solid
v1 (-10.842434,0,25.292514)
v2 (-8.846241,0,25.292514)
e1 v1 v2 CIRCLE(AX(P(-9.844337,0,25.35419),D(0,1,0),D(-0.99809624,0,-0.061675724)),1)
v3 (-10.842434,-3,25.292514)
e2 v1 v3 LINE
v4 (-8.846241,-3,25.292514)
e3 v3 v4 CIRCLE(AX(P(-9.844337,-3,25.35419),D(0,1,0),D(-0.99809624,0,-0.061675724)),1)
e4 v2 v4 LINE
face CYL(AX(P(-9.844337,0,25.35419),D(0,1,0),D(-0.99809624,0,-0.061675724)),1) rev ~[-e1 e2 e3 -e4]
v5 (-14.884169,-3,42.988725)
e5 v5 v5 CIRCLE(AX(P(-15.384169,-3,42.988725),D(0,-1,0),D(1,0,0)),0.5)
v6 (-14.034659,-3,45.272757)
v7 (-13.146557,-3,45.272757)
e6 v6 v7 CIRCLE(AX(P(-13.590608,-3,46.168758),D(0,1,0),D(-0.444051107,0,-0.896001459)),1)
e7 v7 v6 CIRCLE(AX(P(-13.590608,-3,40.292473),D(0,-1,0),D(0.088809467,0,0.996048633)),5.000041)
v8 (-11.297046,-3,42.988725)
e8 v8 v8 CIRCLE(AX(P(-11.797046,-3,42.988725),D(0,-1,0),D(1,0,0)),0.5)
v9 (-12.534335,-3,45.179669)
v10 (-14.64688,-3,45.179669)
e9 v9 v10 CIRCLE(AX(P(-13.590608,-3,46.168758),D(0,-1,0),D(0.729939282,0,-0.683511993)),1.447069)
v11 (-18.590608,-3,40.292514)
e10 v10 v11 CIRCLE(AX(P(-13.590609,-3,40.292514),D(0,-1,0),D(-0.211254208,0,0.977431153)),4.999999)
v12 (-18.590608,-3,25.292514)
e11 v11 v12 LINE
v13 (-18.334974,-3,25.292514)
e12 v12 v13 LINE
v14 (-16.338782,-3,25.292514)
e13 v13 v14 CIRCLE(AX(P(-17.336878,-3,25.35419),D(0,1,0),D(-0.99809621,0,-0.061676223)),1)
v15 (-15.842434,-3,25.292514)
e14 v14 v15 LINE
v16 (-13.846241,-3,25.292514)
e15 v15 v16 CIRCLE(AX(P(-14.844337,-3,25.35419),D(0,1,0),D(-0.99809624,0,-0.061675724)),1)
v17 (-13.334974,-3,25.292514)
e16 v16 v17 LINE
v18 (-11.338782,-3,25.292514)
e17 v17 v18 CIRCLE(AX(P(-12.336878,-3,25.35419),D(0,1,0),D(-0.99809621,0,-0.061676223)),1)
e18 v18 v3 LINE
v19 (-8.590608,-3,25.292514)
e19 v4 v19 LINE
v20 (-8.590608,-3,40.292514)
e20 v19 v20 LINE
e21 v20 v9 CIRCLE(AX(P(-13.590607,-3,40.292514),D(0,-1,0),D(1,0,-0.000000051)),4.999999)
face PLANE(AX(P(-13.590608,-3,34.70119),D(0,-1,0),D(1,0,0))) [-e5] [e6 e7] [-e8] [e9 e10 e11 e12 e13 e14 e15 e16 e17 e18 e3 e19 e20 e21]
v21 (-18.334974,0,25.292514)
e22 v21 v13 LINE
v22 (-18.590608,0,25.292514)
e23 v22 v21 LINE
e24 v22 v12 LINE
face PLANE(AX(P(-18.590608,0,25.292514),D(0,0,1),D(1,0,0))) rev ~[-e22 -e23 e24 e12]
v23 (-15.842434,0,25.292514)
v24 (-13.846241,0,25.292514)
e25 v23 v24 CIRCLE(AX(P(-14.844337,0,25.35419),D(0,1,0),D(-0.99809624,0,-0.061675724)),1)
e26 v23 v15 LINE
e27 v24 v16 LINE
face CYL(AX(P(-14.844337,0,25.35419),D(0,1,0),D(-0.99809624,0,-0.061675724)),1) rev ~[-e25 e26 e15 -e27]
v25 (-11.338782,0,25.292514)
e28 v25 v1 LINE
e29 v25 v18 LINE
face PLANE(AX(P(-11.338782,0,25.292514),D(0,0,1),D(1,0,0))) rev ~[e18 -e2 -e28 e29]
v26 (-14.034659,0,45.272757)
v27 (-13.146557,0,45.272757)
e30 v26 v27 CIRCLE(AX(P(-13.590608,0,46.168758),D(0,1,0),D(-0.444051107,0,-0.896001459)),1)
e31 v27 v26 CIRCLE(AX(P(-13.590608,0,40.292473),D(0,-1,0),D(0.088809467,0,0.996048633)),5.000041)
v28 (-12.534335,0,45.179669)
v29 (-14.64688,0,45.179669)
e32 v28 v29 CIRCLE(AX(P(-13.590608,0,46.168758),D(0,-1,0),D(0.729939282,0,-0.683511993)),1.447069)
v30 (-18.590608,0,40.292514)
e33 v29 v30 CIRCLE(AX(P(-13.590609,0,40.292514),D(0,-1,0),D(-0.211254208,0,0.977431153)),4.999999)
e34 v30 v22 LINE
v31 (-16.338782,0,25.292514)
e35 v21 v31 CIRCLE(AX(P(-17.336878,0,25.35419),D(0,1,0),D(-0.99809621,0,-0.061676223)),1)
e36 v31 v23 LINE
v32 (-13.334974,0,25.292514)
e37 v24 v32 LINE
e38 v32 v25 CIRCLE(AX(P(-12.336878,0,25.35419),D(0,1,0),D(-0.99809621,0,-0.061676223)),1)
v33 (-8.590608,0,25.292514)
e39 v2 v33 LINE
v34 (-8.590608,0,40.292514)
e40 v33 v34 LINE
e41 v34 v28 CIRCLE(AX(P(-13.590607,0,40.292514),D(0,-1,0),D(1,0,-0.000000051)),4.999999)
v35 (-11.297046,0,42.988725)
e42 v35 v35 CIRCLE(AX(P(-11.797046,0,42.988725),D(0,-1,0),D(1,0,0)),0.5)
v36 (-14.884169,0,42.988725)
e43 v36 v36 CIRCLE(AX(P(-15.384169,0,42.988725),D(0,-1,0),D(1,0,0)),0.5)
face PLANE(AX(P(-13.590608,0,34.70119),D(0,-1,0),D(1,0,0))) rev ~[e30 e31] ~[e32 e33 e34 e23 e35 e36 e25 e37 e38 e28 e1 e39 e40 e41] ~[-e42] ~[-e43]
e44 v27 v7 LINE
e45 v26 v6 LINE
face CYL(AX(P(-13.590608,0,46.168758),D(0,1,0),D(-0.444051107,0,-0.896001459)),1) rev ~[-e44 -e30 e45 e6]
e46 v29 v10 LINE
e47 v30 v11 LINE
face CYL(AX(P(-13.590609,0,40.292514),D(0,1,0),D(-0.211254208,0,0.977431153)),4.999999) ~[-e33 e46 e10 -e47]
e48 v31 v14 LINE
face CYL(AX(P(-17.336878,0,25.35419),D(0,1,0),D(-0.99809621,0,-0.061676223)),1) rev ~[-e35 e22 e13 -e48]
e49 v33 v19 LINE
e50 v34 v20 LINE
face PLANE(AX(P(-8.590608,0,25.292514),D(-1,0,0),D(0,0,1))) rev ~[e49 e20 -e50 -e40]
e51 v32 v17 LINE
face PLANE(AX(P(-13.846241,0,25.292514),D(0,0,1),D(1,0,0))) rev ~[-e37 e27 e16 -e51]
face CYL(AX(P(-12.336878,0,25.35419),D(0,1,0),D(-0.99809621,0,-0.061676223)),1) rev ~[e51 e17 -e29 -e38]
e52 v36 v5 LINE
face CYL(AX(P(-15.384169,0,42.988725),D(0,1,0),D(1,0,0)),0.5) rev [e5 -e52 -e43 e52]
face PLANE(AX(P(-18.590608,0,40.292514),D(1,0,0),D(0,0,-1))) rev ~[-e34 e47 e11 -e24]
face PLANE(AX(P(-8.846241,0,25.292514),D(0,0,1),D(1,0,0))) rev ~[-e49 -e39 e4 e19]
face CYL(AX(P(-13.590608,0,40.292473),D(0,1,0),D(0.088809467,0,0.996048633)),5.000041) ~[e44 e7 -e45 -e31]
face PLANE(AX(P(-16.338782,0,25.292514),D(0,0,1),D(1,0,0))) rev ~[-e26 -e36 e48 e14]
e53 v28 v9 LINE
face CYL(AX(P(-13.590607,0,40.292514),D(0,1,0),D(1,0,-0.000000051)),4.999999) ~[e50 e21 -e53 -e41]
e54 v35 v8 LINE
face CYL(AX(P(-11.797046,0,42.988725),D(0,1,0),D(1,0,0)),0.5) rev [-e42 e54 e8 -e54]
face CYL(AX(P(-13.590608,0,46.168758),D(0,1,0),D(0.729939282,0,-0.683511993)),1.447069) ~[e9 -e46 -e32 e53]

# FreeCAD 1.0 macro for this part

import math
import FreeCAD as App
import Part
import Sketcher
from FreeCAD import Vector
Q = App.Units.Quantity

doc = App.newDocument("Part")
body = doc.addObject("PartDesign::Body", "Body")

# Sketch on XZ plane
sketch1 = doc.addObject("Sketcher::SketchObject", "Sketch")
body.addObject(sketch1)
sketch1.AttachmentSupport = (doc.XZ_Plane, [""])
sketch1.MapMode = "FlatFace"
sketch1.addGeometry([
    Part.LineSegment(Vector(-8.59, 25.29, 0), Vector(-8.59, 40.29, 0)),  # 0
    Part.ArcOfCircle(Part.Circle(Vector(-13.59, 40.29, 0), Vector(0, 0, 1), 5), math.radians(0), math.radians(78)),  # 1
    Part.ArcOfCircle(Part.Circle(Vector(-13.59, 46.17, 0), Vector(0, 0, 1), 1.45), math.radians(-43), math.radians(223)),  # 2
    Part.ArcOfCircle(Part.Circle(Vector(-13.59, 40.29, 0), Vector(0, 0, 1), 5), math.radians(102), math.radians(180)),  # 3
    Part.LineSegment(Vector(-18.59, 40.29, 0), Vector(-18.59, 25.29, 0)),  # 4
    Part.LineSegment(Vector(-18.59, 25.29, 0), Vector(-18.33, 25.29, 0)),  # 5
    Part.ArcOfCircle(Part.Circle(Vector(-17.34, 25.35, 0), Vector(0, 0, 1), 1), math.radians(-4), math.radians(184)),  # 6
    Part.LineSegment(Vector(-16.34, 25.29, 0), Vector(-15.84, 25.29, 0)),  # 7
    Part.ArcOfCircle(Part.Circle(Vector(-14.84, 25.35, 0), Vector(0, 0, 1), 1), math.radians(-4), math.radians(184)),  # 8
    Part.LineSegment(Vector(-13.85, 25.29, 0), Vector(-13.33, 25.29, 0)),  # 9
    Part.ArcOfCircle(Part.Circle(Vector(-12.34, 25.35, 0), Vector(0, 0, 1), 1), math.radians(-4), math.radians(184)),  # 10
    Part.LineSegment(Vector(-11.34, 25.29, 0), Vector(-10.84, 25.29, 0)),  # 11
    Part.ArcOfCircle(Part.Circle(Vector(-9.84, 25.35, 0), Vector(0, 0, 1), 1), math.radians(-4), math.radians(184)),  # 12
    Part.LineSegment(Vector(-8.85, 25.29, 0), Vector(-8.59, 25.29, 0)),  # 13
    Part.Circle(Vector(-15.38, 42.99, 0), Vector(0, 0, 1), 0.5),  # 14
    Part.Circle(Vector(-11.8, 42.99, 0), Vector(0, 0, 1), 0.5),  # 15
    Part.ArcOfCircle(Part.Circle(Vector(-13.59, 40.29, 0), Vector(0, 0, 1), 5), math.radians(84.9), math.radians(95.1)),  # 16
    Part.ArcOfCircle(Part.Circle(Vector(-13.59, 46.17, 0), Vector(0, 0, 1), 1), math.radians(-64), math.radians(244)),  # 17
], False)
sketch1.addConstraint([
    Sketcher.Constraint("Tangent", 0, 2, 1, 1),
    Sketcher.Constraint("Coincident", 1, 2, 2, 1),
    Sketcher.Constraint("Coincident", 2, 2, 3, 1),
    Sketcher.Constraint("Tangent", 3, 2, 4, 1),
    Sketcher.Constraint("Coincident", 4, 2, 5, 1),
    Sketcher.Constraint("Coincident", 5, 2, 6, 2),
    Sketcher.Constraint("Coincident", 6, 1, 7, 1),
    Sketcher.Constraint("Coincident", 7, 2, 8, 2),
    Sketcher.Constraint("Coincident", 8, 1, 9, 1),
    Sketcher.Constraint("Coincident", 9, 2, 10, 2),
    Sketcher.Constraint("Coincident", 10, 1, 11, 1),
    Sketcher.Constraint("Coincident", 11, 2, 12, 2),
    Sketcher.Constraint("Coincident", 12, 1, 13, 1),
    Sketcher.Constraint("Coincident", 13, 2, 0, 1),
    Sketcher.Constraint("Coincident", 16, 1, 17, 1),
    Sketcher.Constraint("Coincident", 17, 2, 16, 2),
    Sketcher.Constraint("Vertical", 0),
    Sketcher.Constraint("Vertical", 4),
    Sketcher.Constraint("Horizontal", 5),
    Sketcher.Constraint("Horizontal", 7),
    Sketcher.Constraint("Horizontal", 9),
    Sketcher.Constraint("Horizontal", 11),
    Sketcher.Constraint("Horizontal", 13),
    Sketcher.Constraint("Coincident", 3, 3, 1, 3),
    Sketcher.Constraint("Coincident", 17, 3, 2, 3),
    Sketcher.Constraint("Equal", 1, 3),
    Sketcher.Constraint("Equal", 6, 8),
    Sketcher.Constraint("Equal", 8, 10),
    Sketcher.Constraint("Equal", 10, 12),
    Sketcher.Constraint("Equal", 14, 15),
    Sketcher.Constraint("Equal", 12, 17),
    Sketcher.Constraint("Horizontal", 6, 3, 8, 3),
    Sketcher.Constraint("Horizontal", 8, 3, 10, 3),
    Sketcher.Constraint("Horizontal", 10, 3, 12, 3),
    Sketcher.Constraint("Horizontal", 14, 3, 15, 3),
    Sketcher.Constraint("Horizontal", 1, 2, 2, 2),
    Sketcher.Constraint("Horizontal", 5, 2, 6, 1),
    Sketcher.Constraint("Horizontal", 7, 2, 8, 1),
    Sketcher.Constraint("Horizontal", 9, 2, 10, 1),
    Sketcher.Constraint("Horizontal", 11, 2, 12, 1),
    Sketcher.Constraint("Horizontal", 16, 1, 17, 2),
    Sketcher.Constraint("Equal", 7, 11),
    Sketcher.Constraint("Equal", 5, 13),
    Sketcher.Constraint("Diameter", 14, Q("1 mm")),
    Sketcher.Constraint("Radius", 1, Q("4.999999 mm")),
    Sketcher.Constraint("Radius", 6, Q("1 mm")),
    Sketcher.Constraint("DistanceY", 0, 1, 0, 2, Q("15 mm")),
    Sketcher.Constraint("DistanceX", 6, 3, 10, 3, Q("5 mm")),
    Sketcher.Constraint("Radius", 2, Q("1.447069 mm")),
    Sketcher.Constraint("Radius", 16, Q("5.000041 mm")),
    Sketcher.Constraint("DistanceY", 16, 1, 2, 3, Q("0.896001 mm")),
    Sketcher.Constraint("DistanceX", 5, 1, 5, 2, Q("0.255634 mm")),
    Sketcher.Constraint("DistanceX", 7, 1, 7, 2, Q("0.496348 mm")),
    Sketcher.Constraint("DistanceY", -1, 1, 2, 3, Q("46.168758 mm")),
    Sketcher.Constraint("DistanceX", 3, 3, -1, 1, Q("13.590609 mm")),
    Sketcher.Constraint("DistanceY", -1, 1, 6, 3, Q("25.35419 mm")),
    Sketcher.Constraint("DistanceX", 14, 3, -1, 1, Q("15.384169 mm")),
    Sketcher.Constraint("DistanceY", 3, 3, 14, 3, Q("2.696211 mm")),
    Sketcher.Constraint("DistanceX", 1, 3, 15, 3, Q("1.793561 mm")),
])
pad1 = doc.addObject("PartDesign::Pad", "Pad")
body.addObject(pad1)
pad1.Profile = sketch1
pad1.Length = 3

doc.recompute()
